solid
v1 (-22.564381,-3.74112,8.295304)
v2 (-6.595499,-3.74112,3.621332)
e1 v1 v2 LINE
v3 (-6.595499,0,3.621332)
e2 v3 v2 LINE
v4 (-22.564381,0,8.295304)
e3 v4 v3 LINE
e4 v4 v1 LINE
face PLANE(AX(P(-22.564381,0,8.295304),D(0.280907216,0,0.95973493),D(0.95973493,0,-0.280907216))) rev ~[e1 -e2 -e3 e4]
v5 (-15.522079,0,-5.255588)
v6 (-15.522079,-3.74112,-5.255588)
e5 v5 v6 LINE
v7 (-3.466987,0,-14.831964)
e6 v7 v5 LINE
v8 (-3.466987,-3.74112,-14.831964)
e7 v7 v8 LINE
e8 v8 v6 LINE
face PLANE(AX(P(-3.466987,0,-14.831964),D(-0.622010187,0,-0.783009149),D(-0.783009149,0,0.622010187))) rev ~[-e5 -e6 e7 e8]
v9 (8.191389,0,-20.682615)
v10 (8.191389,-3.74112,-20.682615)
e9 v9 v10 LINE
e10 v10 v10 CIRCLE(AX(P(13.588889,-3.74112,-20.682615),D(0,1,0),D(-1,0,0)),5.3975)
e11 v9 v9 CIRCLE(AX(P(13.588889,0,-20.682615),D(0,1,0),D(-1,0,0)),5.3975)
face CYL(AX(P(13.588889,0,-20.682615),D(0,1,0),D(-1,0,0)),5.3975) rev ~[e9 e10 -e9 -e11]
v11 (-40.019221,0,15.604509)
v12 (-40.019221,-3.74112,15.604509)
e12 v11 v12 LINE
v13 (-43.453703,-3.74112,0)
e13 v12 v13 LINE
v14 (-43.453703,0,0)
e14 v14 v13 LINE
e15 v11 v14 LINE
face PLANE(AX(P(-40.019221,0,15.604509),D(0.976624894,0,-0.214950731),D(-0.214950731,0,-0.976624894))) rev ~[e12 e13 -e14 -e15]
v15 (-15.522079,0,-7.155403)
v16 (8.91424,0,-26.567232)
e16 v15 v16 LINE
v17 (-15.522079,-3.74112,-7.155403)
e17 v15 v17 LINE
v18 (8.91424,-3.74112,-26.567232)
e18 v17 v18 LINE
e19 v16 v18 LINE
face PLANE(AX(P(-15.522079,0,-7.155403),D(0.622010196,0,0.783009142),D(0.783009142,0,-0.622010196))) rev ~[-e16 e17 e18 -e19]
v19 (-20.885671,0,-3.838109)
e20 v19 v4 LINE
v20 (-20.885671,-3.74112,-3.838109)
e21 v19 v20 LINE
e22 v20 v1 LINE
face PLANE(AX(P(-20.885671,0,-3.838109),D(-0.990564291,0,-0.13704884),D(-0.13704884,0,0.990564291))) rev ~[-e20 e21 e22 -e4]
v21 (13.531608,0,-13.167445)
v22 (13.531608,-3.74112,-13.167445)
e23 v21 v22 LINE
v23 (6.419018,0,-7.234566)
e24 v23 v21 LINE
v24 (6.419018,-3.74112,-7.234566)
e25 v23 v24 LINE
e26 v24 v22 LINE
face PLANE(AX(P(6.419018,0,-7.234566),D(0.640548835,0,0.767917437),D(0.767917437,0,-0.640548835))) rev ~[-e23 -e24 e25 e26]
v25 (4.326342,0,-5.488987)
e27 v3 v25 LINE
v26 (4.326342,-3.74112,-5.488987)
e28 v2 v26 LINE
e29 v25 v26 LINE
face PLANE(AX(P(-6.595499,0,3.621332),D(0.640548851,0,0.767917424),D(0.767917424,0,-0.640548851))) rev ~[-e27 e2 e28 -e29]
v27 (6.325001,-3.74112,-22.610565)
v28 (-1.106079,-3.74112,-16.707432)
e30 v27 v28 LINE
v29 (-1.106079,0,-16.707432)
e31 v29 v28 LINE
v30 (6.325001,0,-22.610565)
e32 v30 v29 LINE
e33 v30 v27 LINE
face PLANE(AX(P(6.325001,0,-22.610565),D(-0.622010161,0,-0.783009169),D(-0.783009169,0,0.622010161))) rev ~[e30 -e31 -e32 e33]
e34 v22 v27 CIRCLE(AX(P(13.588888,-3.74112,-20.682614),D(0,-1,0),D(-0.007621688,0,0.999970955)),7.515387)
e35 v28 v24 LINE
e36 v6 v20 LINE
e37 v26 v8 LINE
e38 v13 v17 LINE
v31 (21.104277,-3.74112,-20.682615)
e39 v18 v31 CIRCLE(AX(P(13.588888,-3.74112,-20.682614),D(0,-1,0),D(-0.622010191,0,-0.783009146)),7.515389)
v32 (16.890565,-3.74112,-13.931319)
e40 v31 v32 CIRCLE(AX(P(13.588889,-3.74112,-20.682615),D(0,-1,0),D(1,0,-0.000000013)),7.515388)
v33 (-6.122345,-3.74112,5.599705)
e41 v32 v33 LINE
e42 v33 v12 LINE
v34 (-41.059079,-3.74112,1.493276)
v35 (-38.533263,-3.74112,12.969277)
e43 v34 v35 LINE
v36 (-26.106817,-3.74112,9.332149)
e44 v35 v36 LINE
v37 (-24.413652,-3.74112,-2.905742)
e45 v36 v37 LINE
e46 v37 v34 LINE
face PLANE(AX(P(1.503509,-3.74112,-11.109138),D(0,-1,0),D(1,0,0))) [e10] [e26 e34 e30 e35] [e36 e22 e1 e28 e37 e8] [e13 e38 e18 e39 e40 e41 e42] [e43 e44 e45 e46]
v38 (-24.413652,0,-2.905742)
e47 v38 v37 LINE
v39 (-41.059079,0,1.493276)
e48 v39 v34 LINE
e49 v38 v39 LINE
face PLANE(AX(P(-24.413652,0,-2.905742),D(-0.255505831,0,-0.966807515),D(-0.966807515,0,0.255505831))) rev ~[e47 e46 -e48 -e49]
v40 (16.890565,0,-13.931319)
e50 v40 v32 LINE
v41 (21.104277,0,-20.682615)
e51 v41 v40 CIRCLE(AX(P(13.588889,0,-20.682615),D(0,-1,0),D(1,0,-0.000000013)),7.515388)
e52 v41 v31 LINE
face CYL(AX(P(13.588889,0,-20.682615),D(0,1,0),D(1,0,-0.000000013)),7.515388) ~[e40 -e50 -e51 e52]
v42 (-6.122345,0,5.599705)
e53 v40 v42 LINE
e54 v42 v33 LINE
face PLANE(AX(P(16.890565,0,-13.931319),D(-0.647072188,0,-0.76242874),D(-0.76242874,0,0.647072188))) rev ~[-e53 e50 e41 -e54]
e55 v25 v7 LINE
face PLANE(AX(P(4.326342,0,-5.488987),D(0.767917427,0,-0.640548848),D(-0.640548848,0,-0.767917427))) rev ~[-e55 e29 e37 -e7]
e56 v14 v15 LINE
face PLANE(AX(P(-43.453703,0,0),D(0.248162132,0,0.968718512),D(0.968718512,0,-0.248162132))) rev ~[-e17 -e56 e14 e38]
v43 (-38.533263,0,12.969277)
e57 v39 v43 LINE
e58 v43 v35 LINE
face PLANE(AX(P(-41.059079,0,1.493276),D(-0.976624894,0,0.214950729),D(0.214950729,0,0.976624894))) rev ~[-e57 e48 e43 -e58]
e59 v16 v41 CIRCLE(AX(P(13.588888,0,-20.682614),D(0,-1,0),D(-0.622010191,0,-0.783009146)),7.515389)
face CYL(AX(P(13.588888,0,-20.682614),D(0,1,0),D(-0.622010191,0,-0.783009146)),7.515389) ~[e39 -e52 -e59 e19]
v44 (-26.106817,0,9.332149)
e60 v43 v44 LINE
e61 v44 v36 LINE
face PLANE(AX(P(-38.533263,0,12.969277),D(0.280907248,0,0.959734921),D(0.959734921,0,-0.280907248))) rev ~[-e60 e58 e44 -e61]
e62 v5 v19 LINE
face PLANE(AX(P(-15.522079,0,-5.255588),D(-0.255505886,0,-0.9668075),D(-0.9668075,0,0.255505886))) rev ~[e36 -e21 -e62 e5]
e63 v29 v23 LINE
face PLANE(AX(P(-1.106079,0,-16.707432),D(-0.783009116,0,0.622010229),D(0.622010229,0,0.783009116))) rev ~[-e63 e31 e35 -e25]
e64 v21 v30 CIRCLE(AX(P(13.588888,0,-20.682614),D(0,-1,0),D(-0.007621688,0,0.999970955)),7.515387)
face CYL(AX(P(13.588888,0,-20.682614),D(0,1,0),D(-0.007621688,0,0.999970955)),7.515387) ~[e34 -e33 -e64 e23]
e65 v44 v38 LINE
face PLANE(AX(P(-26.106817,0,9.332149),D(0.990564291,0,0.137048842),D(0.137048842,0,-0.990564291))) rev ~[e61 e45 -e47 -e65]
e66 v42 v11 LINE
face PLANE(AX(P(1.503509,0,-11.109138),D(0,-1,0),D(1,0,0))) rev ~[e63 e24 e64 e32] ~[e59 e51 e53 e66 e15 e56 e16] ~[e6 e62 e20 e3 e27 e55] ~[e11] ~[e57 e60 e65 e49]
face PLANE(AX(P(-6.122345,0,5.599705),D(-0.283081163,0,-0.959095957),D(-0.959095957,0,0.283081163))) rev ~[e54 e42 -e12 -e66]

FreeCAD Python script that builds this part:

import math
import FreeCAD as App
import Part
import Sketcher
from FreeCAD import Vector
Q = App.Units.Quantity

doc = App.newDocument("Part")
params = doc.addObject("Spreadsheet::Sheet", "Params")
for row, (alias, value) in enumerate([
    ("pad1_length", "3.74112 mm"),
    ("sketch2_diameter", "0.425 in"),
    ("pocket1_length", "1 in"),
], start=1):
    params.set(f"A{row}", alias)
    params.set(f"B{row}", "=" + value)
    params.setAlias(f"B{row}", alias)

body = doc.addObject("PartDesign::Body", "Body")

# Sketch on XZ plane
sketch1 = body.newObject("Sketcher::SketchObject", "Sketch")
sketch1.AttachmentSupport = (doc.getObject("XZ_Plane"), [""])
sketch1.MapMode = "FlatFace"
sketch1.addGeometry([
    Part.LineSegment(Vector(16.890565, -13.931319, 0), Vector(-6.122345, 5.599705, 0)),  # 0
    Part.LineSegment(Vector(-6.122345, 5.599705, 0), Vector(-40.019221, 15.604509, 0)),  # 1
    Part.LineSegment(Vector(-40.019221, 15.604509, 0), Vector(-43.453703, 0, 0)),  # 2
    Part.LineSegment(Vector(-43.453703, 0, 0), Vector(-15.522079, -7.155403, 0)),  # 3
    Part.LineSegment(Vector(-15.522079, -7.155403, 0), Vector(8.91424, -26.567232, 0)),  # 4
    Part.ArcOfCircle(Part.Circle(Vector(13.588888, -20.682614, 0), Vector(0, 0, 1), 7.515389), math.radians(-128.463078), math.radians(-0.000008)),  # 5
    Part.ArcOfCircle(Part.Circle(Vector(13.588889, -20.682615, 0), Vector(0, 0, 1), 7.515388), math.radians(-0.000001), math.radians(63.939362)),  # 6
    Part.LineSegment(Vector(-1.106079, -16.707432, 0), Vector(6.419018, -7.234566, 0)),  # 7
    Part.LineSegment(Vector(6.419018, -7.234566, 0), Vector(13.531608, -13.167445, 0)),  # 8
    Part.ArcOfCircle(Part.Circle(Vector(13.588888, -20.682614, 0), Vector(0, 0, 1), 7.515387), math.radians(90.436695), math.radians(194.864489)),  # 9
    Part.LineSegment(Vector(6.325001, -22.610565, 0), Vector(-1.106079, -16.707432, 0)),  # 10
    Part.LineSegment(Vector(-24.413652, -2.905742, 0), Vector(-41.059079, 1.493276, 0)),  # 11
    Part.LineSegment(Vector(-41.059079, 1.493276, 0), Vector(-38.533263, 12.969277, 0)),  # 12
    Part.LineSegment(Vector(-38.533263, 12.969277, 0), Vector(-26.106817, 9.332149, 0)),  # 13
    Part.LineSegment(Vector(-26.106817, 9.332149, 0), Vector(-24.413652, -2.905742, 0)),  # 14
    Part.LineSegment(Vector(4.326342, -5.488987, 0), Vector(-3.466987, -14.831964, 0)),  # 15
    Part.LineSegment(Vector(-3.466987, -14.831964, 0), Vector(-15.522079, -5.255588, 0)),  # 16
    Part.LineSegment(Vector(-15.522079, -5.255588, 0), Vector(-20.885671, -3.838109, 0)),  # 17
    Part.LineSegment(Vector(-20.885671, -3.838109, 0), Vector(-22.564381, 8.295304, 0)),  # 18
    Part.LineSegment(Vector(-22.564381, 8.295304, 0), Vector(-6.595499, 3.621332, 0)),  # 19
    Part.LineSegment(Vector(-6.595499, 3.621332, 0), Vector(4.326342, -5.488987, 0)),  # 20
], False)
sketch1.addConstraint([
    Sketcher.Constraint("Coincident", 0, 2, 1, 1),
    Sketcher.Constraint("Coincident", 1, 2, 2, 1),
    Sketcher.Constraint("Coincident", 2, 2, 3, 1),
    Sketcher.Constraint("Coincident", 3, 2, 4, 1),
    Sketcher.Constraint("Coincident", 4, 2, 5, 1),
    Sketcher.Constraint("Coincident", 5, 2, 6, 1),
    Sketcher.Constraint("Coincident", 6, 2, 0, 1),
    Sketcher.Constraint("Coincident", 7, 2, 8, 1),
    Sketcher.Constraint("Coincident", 8, 2, 9, 1),
    Sketcher.Constraint("Coincident", 9, 2, 10, 1),
    Sketcher.Constraint("Coincident", 10, 2, 7, 1),
    Sketcher.Constraint("Coincident", 11, 2, 12, 1),
    Sketcher.Constraint("Coincident", 12, 2, 13, 1),
    Sketcher.Constraint("Coincident", 13, 2, 14, 1),
    Sketcher.Constraint("Coincident", 14, 2, 11, 1),
    Sketcher.Constraint("Coincident", 15, 2, 16, 1),
    Sketcher.Constraint("Coincident", 16, 2, 17, 1),
    Sketcher.Constraint("Coincident", 17, 2, 18, 1),
    Sketcher.Constraint("Coincident", 18, 2, 19, 1),
    Sketcher.Constraint("Coincident", 19, 2, 20, 1),
    Sketcher.Constraint("Coincident", 20, 2, 15, 1),
    Sketcher.Constraint("Coincident", 6, 3, 5, 3),
    Sketcher.Constraint("Coincident", 9, 3, 5, 3),
    Sketcher.Constraint("PointOnObject", 2, 2, -1),
    Sketcher.Constraint("Radius", 5, Q("7.515389 mm")),
    Sketcher.Constraint("Radius", 9, Q("7.515387 mm")),
    Sketcher.Constraint("Distance", 11, Q("17.216899 mm")),
    Sketcher.Constraint("DistanceX", -1, 1, 9, 2, Q("6.325001 mm")),
    Sketcher.Constraint("DistanceX", 19, 2, -1, 1, Q("6.595499 mm")),
    Sketcher.Constraint("DistanceY", 4, 2, 10, 2, Q("9.8598 mm")),
    Sketcher.Constraint("DistanceX", 11, 2, 3, 2, Q("25.537 mm")),
    Sketcher.Constraint("DistanceX", 11, 2, 10, 2, Q("39.953 mm")),
    Sketcher.Constraint("DistanceY", 11, 2, 12, 2, Q("11.476001 mm")),
    Sketcher.Constraint("DistanceY", 9, 2, 15, 2, Q("7.778601 mm")),
    Sketcher.Constraint("Distance", 1, Q("35.342528 mm")),
    Sketcher.Constraint("Distance", 3, Q("28.833581 mm")),
    Sketcher.Constraint("Distance", 8, Q("9.262181 mm")),
    Sketcher.Constraint("Distance", 13, Q("12.94779 mm")),
    Sketcher.Constraint("Distance", 16, Q("15.395851 mm")),
    Sketcher.Constraint("Distance", 18, Q("12.248991 mm")),
    Sketcher.Constraint("DistanceX", -1, 1, 5, 3, Q("13.588888 mm")),
    Sketcher.Constraint("DistanceX", 1, 2, -1, 1, Q("40.019221 mm")),
    Sketcher.Constraint("DistanceY", -1, 1, 1, 2, Q("15.604509 mm")),
    Sketcher.Constraint("DistanceX", 3, 2, -1, 1, Q("15.522079 mm")),
    Sketcher.Constraint("DistanceX", -1, 1, 4, 2, Q("8.91424 mm")),
    Sketcher.Constraint("DistanceY", 6, 2, -1, 1, Q("13.931319 mm")),
    Sketcher.Constraint("DistanceX", -1, 1, 7, 2, Q("6.419018 mm")),
    Sketcher.Constraint("DistanceY", -1, 1, 13, 2, Q("9.332149 mm")),
    Sketcher.Constraint("DistanceX", 14, 2, -1, 1, Q("24.413652 mm")),
    Sketcher.Constraint("DistanceY", 14, 2, -1, 1, Q("2.905742 mm")),
    Sketcher.Constraint("DistanceX", 16, 2, -1, 1, Q("15.522079 mm")),
    Sketcher.Constraint("DistanceY", 16, 2, -1, 1, Q("5.255588 mm")),
    Sketcher.Constraint("DistanceX", 17, 2, -1, 1, Q("20.885671 mm")),
    Sketcher.Constraint("DistanceY", 17, 2, -1, 1, Q("3.838109 mm")),
    Sketcher.Constraint("DistanceX", 18, 2, -1, 1, Q("22.564381 mm")),
    Sketcher.Constraint("DistanceY", 9, 3, 0, 2, Q("26.282319 mm")),
    Sketcher.Constraint("DistanceX", 2, 2, 1, 2, Q("3.434482 mm")),
    Sketcher.Constraint("DistanceY", 9, 3, 3, 2, Q("13.527211 mm")),
    Sketcher.Constraint("DistanceY", 5, 2, 0, 2, Q("26.28232 mm")),
    Sketcher.Constraint("DistanceY", 9, 3, 7, 2, Q("13.448048 mm")),
    Sketcher.Constraint("DistanceX", 1, 2, 12, 2, Q("1.485958 mm")),
    Sketcher.Constraint("DistanceY", 16, 2, 19, 2, Q("8.87692 mm")),
    Sketcher.Constraint("DistanceY", 7, 2, 20, 2, Q("1.745579 mm")),
    Sketcher.Constraint("DistanceX", 15, 2, 20, 2, Q("7.793329 mm")),
])
pad1 = body.newObject("PartDesign::Pad", "Pad")
pad1.Profile = sketch1
pad1.setExpression("Length", "Params.pad1_length")

# Sketch on XZ plane
sketch2 = body.newObject("Sketcher::SketchObject", "Sketch001")
sketch2.AttachmentSupport = (doc.getObject("XZ_Plane"), [""])
sketch2.MapMode = "FlatFace"
sketch2.addGeometry(Part.Circle(Vector(13.588889, -20.682615, 0), Vector(0, 0, 1), 5.3975), False)
sketch2.addConstraint([
    Sketcher.Constraint("Diameter", 0, Q("0.425 in")),
    Sketcher.Constraint("DistanceX", -1, 1, 0, 3, Q("13.588889 mm")),
    Sketcher.Constraint("DistanceY", 0, 3, -1, 1, Q("20.682615 mm")),
])
sketch2.setExpression("Constraints[0]", "Params.sketch2_diameter")
pocket1 = body.newObject("PartDesign::Pocket", "Pocket")
pocket1.Profile = sketch2
pocket1.setExpression("Length", "Params.pocket1_length")
pocket1.Reversed = True

doc.recompute()
